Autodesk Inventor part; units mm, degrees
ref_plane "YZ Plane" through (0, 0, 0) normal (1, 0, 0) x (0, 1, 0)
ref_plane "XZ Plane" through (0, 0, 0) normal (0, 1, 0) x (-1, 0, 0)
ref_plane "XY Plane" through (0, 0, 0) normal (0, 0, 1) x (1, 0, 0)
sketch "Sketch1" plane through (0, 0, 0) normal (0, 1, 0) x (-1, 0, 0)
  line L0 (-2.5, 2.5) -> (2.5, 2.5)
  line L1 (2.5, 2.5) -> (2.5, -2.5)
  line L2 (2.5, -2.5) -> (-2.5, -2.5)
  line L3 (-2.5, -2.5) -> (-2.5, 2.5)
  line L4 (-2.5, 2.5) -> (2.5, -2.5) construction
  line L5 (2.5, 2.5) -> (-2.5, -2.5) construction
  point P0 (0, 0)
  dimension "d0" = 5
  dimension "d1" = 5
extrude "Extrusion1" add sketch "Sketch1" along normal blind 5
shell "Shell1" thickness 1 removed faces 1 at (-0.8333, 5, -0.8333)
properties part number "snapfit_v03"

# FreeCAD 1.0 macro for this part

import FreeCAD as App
import Part
import Sketcher
from FreeCAD import Vector
Q = App.Units.Quantity


def faces_at(feature, points):
    """Names of the faces that lie closest to the given points."""
    faces = feature.Shape.Faces
    near = lambda p: min(range(len(faces)), key=lambda i: faces[i].distToShape(Part.Vertex(*p))[0])
    return sorted({f"Face{near(p) + 1}" for p in points})

doc = App.newDocument("Part")
body = doc.addObject("PartDesign::Body", "Body")

sketch1 = body.newObject("Sketcher::SketchObject", "Sketch")
sketch1.AttachmentSupport = (doc.getObject("XZ_Plane"), [""])
sketch1.MapMode = "FlatFace"
sketch1.addGeometry([
    Part.LineSegment(Vector(-2.5, 2.5, 0), Vector(2.5, 2.5, 0)),
    Part.LineSegment(Vector(2.5, 2.5, 0), Vector(2.5, -2.5, 0)),
    Part.LineSegment(Vector(2.5, -2.5, 0), Vector(-2.5, -2.5, 0)),
    Part.LineSegment(Vector(-2.5, -2.5, 0), Vector(-2.5, 2.5, 0)),
], False)
sketch1.addConstraint([
    Sketcher.Constraint("Coincident", 0, 2, 1, 1),
    Sketcher.Constraint("Coincident", 1, 2, 2, 1),
    Sketcher.Constraint("Coincident", 2, 2, 3, 1),
    Sketcher.Constraint("Coincident", 3, 2, 0, 1),
    Sketcher.Constraint("Horizontal", 0),
    Sketcher.Constraint("Vertical", 1),
    Sketcher.Constraint("Horizontal", 2),
    Sketcher.Constraint("Vertical", 3),
    Sketcher.Constraint("Symmetric", 0, 2, 2, 2, -1, 1),
    Sketcher.Constraint("Equal", 2, 1),
    Sketcher.Constraint("DistanceX", 0, 1, 0, 2, Q("5 mm")),
])
pad1 = body.newObject("PartDesign::Pad", "Pad")
pad1.Profile = sketch1
pad1.Length = 5
pad1.Reversed = True
doc.recompute()

thickness = body.newObject("PartDesign::Thickness", "Thickness")
thickness.Base = (pad1, faces_at(pad1, [(-0.833, 5, -0.833)]))
thickness.Value = 1
thickness.Reversed = True
thickness.Join = "Intersection"

doc.recompute()
